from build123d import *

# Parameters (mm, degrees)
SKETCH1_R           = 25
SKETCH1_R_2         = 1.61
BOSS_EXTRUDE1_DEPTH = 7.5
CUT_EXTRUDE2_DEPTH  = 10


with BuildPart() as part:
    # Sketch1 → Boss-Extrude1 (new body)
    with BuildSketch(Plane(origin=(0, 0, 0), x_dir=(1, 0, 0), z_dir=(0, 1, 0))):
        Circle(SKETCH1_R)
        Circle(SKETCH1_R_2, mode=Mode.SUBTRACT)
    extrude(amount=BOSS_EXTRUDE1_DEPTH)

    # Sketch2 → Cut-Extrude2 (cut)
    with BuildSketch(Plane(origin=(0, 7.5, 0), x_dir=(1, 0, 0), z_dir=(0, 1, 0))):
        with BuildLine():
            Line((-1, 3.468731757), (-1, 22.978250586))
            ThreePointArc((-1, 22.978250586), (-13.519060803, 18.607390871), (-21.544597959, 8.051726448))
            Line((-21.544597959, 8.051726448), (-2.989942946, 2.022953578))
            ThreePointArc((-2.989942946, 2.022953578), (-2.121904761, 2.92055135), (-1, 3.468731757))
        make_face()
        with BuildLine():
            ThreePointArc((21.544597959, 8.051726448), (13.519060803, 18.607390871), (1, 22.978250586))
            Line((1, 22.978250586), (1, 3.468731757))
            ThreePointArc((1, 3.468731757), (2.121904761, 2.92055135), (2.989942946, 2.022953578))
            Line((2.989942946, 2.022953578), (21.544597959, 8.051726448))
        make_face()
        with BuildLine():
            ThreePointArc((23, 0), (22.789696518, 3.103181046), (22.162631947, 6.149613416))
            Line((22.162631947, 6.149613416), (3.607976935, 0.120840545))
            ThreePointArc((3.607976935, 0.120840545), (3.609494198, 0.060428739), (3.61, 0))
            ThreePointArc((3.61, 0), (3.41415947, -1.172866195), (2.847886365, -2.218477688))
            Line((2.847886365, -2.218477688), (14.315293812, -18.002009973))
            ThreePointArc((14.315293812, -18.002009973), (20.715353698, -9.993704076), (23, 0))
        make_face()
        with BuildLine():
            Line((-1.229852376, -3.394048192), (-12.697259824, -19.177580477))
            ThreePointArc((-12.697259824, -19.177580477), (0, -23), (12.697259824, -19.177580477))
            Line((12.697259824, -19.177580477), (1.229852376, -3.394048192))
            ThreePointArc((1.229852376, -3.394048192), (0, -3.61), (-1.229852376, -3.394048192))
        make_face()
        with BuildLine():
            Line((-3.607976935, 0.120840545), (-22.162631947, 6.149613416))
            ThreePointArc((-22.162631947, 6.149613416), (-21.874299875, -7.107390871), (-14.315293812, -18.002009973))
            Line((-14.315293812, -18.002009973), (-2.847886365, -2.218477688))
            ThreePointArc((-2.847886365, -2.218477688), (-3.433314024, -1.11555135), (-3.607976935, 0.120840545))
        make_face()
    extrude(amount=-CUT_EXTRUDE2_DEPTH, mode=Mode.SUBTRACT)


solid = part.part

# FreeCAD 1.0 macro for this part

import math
import FreeCAD as App
import Part
import Sketcher
Q = App.Units.Quantity

doc = App.newDocument("Part")
body = doc.addObject("PartDesign::Body", "Body")

# Sketch on XZ plane
sketch1 = body.newObject("Sketcher::SketchObject", "Sketch")
sketch1.AttachmentSupport = (doc.getObject("XZ_Plane"), [""])
sketch1.MapMode = "FlatFace"
sketch1.addGeometry([
    Part.Circle(App.Vector(0, 0, 0), App.Vector(0, 0, 1), 25),
    Part.Circle(App.Vector(0, 0, 0), App.Vector(0, 0, 1), 1.6),
], False)
sketch1.addConstraint([
    Sketcher.Constraint("Coincident", 0, 3, -1, 1),
    Sketcher.Constraint("Coincident", 1, 3, -1, 1),
    Sketcher.Constraint("Diameter", 0, 50.0),
    Sketcher.Constraint("Diameter", 1, 3.22),
])
pad1 = body.newObject("PartDesign::Pad", "Pad")
pad1.Profile = sketch1
pad1.Length = 7.5
pad1.Reversed = True

# Sketch on XZ plane
sketch2 = body.newObject("Sketcher::SketchObject", "Sketch001")
sketch2.AttachmentSupport = (doc.getObject("XZ_Plane"), [""])
sketch2.MapMode = "FlatFace"
sketch2.AttachmentOffset = App.Placement(App.Vector(0, 0, -7.5), App.Rotation())
sketch2.addGeometry([
    Part.LineSegment(App.Vector(-1, -3.47, 0), App.Vector(-1, -22.98, 0)),  # 0
    Part.ArcOfCircle(Part.Circle(App.Vector(0, 0, 0), App.Vector(0, 0, 1), 23), math.radians(-160), math.radians(-92)),  # 1
    Part.LineSegment(App.Vector(-21.54, -8.05, 0), App.Vector(-2.99, -2.02, 0)),  # 2
    Part.ArcOfCircle(Part.Circle(App.Vector(0, 0, 0), App.Vector(0, 0, 1), 3.61), math.radians(-146), math.radians(-106)),  # 3
    Part.ArcOfCircle(Part.Circle(App.Vector(0, 0, 0), App.Vector(0, 0, 1), 23), math.radians(-88), math.radians(-20)),  # 4
    Part.LineSegment(App.Vector(1, -22.98, 0), App.Vector(1, -3.47, 0)),  # 5
    Part.ArcOfCircle(Part.Circle(App.Vector(0, 0, 0), App.Vector(0, 0, 1), 3.61), math.radians(-74), math.radians(-34)),  # 6
    Part.LineSegment(App.Vector(2.99, -2.02, 0), App.Vector(21.54, -8.05, 0)),  # 7
    Part.ArcOfCircle(Part.Circle(App.Vector(0, 0, 0), App.Vector(0, 0, 1), 23), math.radians(-15.51), math.radians(0)),  # 8
    Part.LineSegment(App.Vector(22.16, -6.15, 0), App.Vector(3.61, -0.12, 0)),  # 9
    Part.ArcOfCircle(Part.Circle(App.Vector(0, 0, 0), App.Vector(0, 0, 1), 3.61), math.radians(-1.92), math.radians(0)),  # 10
    Part.ArcOfCircle(Part.Circle(App.Vector(0, 0, 0), App.Vector(0, 0, 1), 3.61), math.radians(0), math.radians(38)),  # 11
    Part.LineSegment(App.Vector(2.85, 2.22, 0), App.Vector(14.32, 18, 0)),  # 12
    Part.ArcOfCircle(Part.Circle(App.Vector(0, 0, 0), App.Vector(0, 0, 1), 23), math.radians(0), math.radians(52)),  # 13
    Part.LineSegment(App.Vector(-1.23, 3.39, 0), App.Vector(-12.7, 19.18, 0)),  # 14
    Part.ArcOfCircle(Part.Circle(App.Vector(0, 0, 0), App.Vector(0, 0, 1), 23), math.radians(56), math.radians(124)),  # 15
    Part.LineSegment(App.Vector(12.7, 19.18, 0), App.Vector(1.23, 3.39, 0)),  # 16
    Part.ArcOfCircle(Part.Circle(App.Vector(0, 0, 0), App.Vector(0, 0, 1), 3.61), math.radians(70), math.radians(110)),  # 17
    Part.LineSegment(App.Vector(-3.61, -0.12, 0), App.Vector(-22.16, -6.15, 0)),  # 18
    Part.ArcOfCircle(Part.Circle(App.Vector(0, 0, 0), App.Vector(0, 0, 1), 23), math.radians(128), math.radians(196)),  # 19
    Part.LineSegment(App.Vector(-14.32, 18, 0), App.Vector(-2.85, 2.22, 0)),  # 20
    Part.ArcOfCircle(Part.Circle(App.Vector(0, 0, 0), App.Vector(0, 0, 1), 3.61), math.radians(142), math.radians(182)),  # 21
], False)
sketch2.addConstraint([
    Sketcher.Constraint("Coincident", 0, 2, 1, 2),
    Sketcher.Constraint("Coincident", 1, 1, 2, 1),
    Sketcher.Constraint("Coincident", 2, 2, 3, 1),
    Sketcher.Constraint("Coincident", 3, 2, 0, 1),
    Sketcher.Constraint("Coincident", 4, 1, 5, 1),
    Sketcher.Constraint("Coincident", 5, 2, 6, 1),
    Sketcher.Constraint("Coincident", 6, 2, 7, 1),
    Sketcher.Constraint("Coincident", 7, 2, 4, 2),
    Sketcher.Constraint("Coincident", 8, 1, 9, 1),
    Sketcher.Constraint("Coincident", 9, 2, 10, 1),
    Sketcher.Constraint("Tangent", 10, 2, 11, 1),
    Sketcher.Constraint("Coincident", 11, 2, 12, 1),
    Sketcher.Constraint("Coincident", 12, 2, 13, 2),
    Sketcher.Constraint("Tangent", 13, 1, 8, 2),
    Sketcher.Constraint("Coincident", 14, 2, 15, 2),
    Sketcher.Constraint("Coincident", 15, 1, 16, 1),
    Sketcher.Constraint("Coincident", 16, 2, 17, 1),
    Sketcher.Constraint("Coincident", 17, 2, 14, 1),
    Sketcher.Constraint("Coincident", 18, 2, 19, 2),
    Sketcher.Constraint("Coincident", 19, 1, 20, 1),
    Sketcher.Constraint("Coincident", 20, 2, 21, 1),
    Sketcher.Constraint("Coincident", 21, 2, 18, 1),
    Sketcher.Constraint("Vertical", 0),
    Sketcher.Constraint("Vertical", 5),
    Sketcher.Constraint("Coincident", 1, 3, -1, 1),
    Sketcher.Constraint("Coincident", 3, 3, -1, 1),
    Sketcher.Constraint("Coincident", 4, 3, -1, 1),
    Sketcher.Constraint("Coincident", 6, 3, -1, 1),
    Sketcher.Constraint("Coincident", 8, 3, -1, 1),
    Sketcher.Constraint("Coincident", 10, 3, -1, 1),
    Sketcher.Constraint("Coincident", 15, 3, -1, 1),
    Sketcher.Constraint("Coincident", 17, 3, -1, 1),
    Sketcher.Constraint("Coincident", 19, 3, -1, 1),
    Sketcher.Constraint("Coincident", 21, 3, -1, 1),
    Sketcher.Constraint("Equal", 1, 4),
    Sketcher.Constraint("Equal", 3, 6),
    Sketcher.Constraint("Equal", 4, 8),
    Sketcher.Constraint("Equal", 6, 11),
    Sketcher.Constraint("Equal", 8, 13),
    Sketcher.Constraint("Equal", 13, 15),
    Sketcher.Constraint("Equal", 11, 17),
    Sketcher.Constraint("Equal", 15, 19),
    Sketcher.Constraint("Equal", 17, 21),
    Sketcher.Constraint("Symmetric", 11, 2, 20, 2, -2),
    Sketcher.Constraint("PointOnObject", 10, 2, -1),
    Sketcher.Constraint("PointOnObject", 13, 1, -1),
    Sketcher.Constraint("Parallel", 7, 9),
    Sketcher.Constraint("Parallel", 12, 16),
    Sketcher.Constraint("Parallel", 2, 18),
    Sketcher.Constraint("Parallel", 14, 20),
    Sketcher.Constraint("Horizontal", 0, 2, 4, 1),
    Sketcher.Constraint("Horizontal", 2, 2, 6, 2),
    Sketcher.Constraint("Horizontal", 1, 1, 7, 2),
    Sketcher.Constraint("Horizontal", 14, 2, 15, 1),
    Sketcher.Constraint("Horizontal", 16, 2, 17, 2),
    Sketcher.Constraint("Horizontal", 8, 1, 18, 2),
    Sketcher.Constraint("Equal", 7, 9),
    Sketcher.Constraint("Equal", 9, 12),
    Sketcher.Constraint("Equal", 12, 14),
    Sketcher.Constraint("Radius", 1, 23.0),
    Sketcher.Constraint("Angle", 2, Q("18 deg")),
    Sketcher.Constraint("Angle", 12, Q("54 deg")),
    Sketcher.Constraint("Radius", 3, 3.61),
    Sketcher.Constraint("DistanceX", 0, 2, -1, 1, 1.0),
    Sketcher.Constraint("Distance", 2, 19.509519),
])
pocket1 = body.newObject("PartDesign::Pocket", "Pocket")
pocket1.Profile = sketch2
pocket1.Length = 10
pocket1.Reversed = True

doc.recompute()
